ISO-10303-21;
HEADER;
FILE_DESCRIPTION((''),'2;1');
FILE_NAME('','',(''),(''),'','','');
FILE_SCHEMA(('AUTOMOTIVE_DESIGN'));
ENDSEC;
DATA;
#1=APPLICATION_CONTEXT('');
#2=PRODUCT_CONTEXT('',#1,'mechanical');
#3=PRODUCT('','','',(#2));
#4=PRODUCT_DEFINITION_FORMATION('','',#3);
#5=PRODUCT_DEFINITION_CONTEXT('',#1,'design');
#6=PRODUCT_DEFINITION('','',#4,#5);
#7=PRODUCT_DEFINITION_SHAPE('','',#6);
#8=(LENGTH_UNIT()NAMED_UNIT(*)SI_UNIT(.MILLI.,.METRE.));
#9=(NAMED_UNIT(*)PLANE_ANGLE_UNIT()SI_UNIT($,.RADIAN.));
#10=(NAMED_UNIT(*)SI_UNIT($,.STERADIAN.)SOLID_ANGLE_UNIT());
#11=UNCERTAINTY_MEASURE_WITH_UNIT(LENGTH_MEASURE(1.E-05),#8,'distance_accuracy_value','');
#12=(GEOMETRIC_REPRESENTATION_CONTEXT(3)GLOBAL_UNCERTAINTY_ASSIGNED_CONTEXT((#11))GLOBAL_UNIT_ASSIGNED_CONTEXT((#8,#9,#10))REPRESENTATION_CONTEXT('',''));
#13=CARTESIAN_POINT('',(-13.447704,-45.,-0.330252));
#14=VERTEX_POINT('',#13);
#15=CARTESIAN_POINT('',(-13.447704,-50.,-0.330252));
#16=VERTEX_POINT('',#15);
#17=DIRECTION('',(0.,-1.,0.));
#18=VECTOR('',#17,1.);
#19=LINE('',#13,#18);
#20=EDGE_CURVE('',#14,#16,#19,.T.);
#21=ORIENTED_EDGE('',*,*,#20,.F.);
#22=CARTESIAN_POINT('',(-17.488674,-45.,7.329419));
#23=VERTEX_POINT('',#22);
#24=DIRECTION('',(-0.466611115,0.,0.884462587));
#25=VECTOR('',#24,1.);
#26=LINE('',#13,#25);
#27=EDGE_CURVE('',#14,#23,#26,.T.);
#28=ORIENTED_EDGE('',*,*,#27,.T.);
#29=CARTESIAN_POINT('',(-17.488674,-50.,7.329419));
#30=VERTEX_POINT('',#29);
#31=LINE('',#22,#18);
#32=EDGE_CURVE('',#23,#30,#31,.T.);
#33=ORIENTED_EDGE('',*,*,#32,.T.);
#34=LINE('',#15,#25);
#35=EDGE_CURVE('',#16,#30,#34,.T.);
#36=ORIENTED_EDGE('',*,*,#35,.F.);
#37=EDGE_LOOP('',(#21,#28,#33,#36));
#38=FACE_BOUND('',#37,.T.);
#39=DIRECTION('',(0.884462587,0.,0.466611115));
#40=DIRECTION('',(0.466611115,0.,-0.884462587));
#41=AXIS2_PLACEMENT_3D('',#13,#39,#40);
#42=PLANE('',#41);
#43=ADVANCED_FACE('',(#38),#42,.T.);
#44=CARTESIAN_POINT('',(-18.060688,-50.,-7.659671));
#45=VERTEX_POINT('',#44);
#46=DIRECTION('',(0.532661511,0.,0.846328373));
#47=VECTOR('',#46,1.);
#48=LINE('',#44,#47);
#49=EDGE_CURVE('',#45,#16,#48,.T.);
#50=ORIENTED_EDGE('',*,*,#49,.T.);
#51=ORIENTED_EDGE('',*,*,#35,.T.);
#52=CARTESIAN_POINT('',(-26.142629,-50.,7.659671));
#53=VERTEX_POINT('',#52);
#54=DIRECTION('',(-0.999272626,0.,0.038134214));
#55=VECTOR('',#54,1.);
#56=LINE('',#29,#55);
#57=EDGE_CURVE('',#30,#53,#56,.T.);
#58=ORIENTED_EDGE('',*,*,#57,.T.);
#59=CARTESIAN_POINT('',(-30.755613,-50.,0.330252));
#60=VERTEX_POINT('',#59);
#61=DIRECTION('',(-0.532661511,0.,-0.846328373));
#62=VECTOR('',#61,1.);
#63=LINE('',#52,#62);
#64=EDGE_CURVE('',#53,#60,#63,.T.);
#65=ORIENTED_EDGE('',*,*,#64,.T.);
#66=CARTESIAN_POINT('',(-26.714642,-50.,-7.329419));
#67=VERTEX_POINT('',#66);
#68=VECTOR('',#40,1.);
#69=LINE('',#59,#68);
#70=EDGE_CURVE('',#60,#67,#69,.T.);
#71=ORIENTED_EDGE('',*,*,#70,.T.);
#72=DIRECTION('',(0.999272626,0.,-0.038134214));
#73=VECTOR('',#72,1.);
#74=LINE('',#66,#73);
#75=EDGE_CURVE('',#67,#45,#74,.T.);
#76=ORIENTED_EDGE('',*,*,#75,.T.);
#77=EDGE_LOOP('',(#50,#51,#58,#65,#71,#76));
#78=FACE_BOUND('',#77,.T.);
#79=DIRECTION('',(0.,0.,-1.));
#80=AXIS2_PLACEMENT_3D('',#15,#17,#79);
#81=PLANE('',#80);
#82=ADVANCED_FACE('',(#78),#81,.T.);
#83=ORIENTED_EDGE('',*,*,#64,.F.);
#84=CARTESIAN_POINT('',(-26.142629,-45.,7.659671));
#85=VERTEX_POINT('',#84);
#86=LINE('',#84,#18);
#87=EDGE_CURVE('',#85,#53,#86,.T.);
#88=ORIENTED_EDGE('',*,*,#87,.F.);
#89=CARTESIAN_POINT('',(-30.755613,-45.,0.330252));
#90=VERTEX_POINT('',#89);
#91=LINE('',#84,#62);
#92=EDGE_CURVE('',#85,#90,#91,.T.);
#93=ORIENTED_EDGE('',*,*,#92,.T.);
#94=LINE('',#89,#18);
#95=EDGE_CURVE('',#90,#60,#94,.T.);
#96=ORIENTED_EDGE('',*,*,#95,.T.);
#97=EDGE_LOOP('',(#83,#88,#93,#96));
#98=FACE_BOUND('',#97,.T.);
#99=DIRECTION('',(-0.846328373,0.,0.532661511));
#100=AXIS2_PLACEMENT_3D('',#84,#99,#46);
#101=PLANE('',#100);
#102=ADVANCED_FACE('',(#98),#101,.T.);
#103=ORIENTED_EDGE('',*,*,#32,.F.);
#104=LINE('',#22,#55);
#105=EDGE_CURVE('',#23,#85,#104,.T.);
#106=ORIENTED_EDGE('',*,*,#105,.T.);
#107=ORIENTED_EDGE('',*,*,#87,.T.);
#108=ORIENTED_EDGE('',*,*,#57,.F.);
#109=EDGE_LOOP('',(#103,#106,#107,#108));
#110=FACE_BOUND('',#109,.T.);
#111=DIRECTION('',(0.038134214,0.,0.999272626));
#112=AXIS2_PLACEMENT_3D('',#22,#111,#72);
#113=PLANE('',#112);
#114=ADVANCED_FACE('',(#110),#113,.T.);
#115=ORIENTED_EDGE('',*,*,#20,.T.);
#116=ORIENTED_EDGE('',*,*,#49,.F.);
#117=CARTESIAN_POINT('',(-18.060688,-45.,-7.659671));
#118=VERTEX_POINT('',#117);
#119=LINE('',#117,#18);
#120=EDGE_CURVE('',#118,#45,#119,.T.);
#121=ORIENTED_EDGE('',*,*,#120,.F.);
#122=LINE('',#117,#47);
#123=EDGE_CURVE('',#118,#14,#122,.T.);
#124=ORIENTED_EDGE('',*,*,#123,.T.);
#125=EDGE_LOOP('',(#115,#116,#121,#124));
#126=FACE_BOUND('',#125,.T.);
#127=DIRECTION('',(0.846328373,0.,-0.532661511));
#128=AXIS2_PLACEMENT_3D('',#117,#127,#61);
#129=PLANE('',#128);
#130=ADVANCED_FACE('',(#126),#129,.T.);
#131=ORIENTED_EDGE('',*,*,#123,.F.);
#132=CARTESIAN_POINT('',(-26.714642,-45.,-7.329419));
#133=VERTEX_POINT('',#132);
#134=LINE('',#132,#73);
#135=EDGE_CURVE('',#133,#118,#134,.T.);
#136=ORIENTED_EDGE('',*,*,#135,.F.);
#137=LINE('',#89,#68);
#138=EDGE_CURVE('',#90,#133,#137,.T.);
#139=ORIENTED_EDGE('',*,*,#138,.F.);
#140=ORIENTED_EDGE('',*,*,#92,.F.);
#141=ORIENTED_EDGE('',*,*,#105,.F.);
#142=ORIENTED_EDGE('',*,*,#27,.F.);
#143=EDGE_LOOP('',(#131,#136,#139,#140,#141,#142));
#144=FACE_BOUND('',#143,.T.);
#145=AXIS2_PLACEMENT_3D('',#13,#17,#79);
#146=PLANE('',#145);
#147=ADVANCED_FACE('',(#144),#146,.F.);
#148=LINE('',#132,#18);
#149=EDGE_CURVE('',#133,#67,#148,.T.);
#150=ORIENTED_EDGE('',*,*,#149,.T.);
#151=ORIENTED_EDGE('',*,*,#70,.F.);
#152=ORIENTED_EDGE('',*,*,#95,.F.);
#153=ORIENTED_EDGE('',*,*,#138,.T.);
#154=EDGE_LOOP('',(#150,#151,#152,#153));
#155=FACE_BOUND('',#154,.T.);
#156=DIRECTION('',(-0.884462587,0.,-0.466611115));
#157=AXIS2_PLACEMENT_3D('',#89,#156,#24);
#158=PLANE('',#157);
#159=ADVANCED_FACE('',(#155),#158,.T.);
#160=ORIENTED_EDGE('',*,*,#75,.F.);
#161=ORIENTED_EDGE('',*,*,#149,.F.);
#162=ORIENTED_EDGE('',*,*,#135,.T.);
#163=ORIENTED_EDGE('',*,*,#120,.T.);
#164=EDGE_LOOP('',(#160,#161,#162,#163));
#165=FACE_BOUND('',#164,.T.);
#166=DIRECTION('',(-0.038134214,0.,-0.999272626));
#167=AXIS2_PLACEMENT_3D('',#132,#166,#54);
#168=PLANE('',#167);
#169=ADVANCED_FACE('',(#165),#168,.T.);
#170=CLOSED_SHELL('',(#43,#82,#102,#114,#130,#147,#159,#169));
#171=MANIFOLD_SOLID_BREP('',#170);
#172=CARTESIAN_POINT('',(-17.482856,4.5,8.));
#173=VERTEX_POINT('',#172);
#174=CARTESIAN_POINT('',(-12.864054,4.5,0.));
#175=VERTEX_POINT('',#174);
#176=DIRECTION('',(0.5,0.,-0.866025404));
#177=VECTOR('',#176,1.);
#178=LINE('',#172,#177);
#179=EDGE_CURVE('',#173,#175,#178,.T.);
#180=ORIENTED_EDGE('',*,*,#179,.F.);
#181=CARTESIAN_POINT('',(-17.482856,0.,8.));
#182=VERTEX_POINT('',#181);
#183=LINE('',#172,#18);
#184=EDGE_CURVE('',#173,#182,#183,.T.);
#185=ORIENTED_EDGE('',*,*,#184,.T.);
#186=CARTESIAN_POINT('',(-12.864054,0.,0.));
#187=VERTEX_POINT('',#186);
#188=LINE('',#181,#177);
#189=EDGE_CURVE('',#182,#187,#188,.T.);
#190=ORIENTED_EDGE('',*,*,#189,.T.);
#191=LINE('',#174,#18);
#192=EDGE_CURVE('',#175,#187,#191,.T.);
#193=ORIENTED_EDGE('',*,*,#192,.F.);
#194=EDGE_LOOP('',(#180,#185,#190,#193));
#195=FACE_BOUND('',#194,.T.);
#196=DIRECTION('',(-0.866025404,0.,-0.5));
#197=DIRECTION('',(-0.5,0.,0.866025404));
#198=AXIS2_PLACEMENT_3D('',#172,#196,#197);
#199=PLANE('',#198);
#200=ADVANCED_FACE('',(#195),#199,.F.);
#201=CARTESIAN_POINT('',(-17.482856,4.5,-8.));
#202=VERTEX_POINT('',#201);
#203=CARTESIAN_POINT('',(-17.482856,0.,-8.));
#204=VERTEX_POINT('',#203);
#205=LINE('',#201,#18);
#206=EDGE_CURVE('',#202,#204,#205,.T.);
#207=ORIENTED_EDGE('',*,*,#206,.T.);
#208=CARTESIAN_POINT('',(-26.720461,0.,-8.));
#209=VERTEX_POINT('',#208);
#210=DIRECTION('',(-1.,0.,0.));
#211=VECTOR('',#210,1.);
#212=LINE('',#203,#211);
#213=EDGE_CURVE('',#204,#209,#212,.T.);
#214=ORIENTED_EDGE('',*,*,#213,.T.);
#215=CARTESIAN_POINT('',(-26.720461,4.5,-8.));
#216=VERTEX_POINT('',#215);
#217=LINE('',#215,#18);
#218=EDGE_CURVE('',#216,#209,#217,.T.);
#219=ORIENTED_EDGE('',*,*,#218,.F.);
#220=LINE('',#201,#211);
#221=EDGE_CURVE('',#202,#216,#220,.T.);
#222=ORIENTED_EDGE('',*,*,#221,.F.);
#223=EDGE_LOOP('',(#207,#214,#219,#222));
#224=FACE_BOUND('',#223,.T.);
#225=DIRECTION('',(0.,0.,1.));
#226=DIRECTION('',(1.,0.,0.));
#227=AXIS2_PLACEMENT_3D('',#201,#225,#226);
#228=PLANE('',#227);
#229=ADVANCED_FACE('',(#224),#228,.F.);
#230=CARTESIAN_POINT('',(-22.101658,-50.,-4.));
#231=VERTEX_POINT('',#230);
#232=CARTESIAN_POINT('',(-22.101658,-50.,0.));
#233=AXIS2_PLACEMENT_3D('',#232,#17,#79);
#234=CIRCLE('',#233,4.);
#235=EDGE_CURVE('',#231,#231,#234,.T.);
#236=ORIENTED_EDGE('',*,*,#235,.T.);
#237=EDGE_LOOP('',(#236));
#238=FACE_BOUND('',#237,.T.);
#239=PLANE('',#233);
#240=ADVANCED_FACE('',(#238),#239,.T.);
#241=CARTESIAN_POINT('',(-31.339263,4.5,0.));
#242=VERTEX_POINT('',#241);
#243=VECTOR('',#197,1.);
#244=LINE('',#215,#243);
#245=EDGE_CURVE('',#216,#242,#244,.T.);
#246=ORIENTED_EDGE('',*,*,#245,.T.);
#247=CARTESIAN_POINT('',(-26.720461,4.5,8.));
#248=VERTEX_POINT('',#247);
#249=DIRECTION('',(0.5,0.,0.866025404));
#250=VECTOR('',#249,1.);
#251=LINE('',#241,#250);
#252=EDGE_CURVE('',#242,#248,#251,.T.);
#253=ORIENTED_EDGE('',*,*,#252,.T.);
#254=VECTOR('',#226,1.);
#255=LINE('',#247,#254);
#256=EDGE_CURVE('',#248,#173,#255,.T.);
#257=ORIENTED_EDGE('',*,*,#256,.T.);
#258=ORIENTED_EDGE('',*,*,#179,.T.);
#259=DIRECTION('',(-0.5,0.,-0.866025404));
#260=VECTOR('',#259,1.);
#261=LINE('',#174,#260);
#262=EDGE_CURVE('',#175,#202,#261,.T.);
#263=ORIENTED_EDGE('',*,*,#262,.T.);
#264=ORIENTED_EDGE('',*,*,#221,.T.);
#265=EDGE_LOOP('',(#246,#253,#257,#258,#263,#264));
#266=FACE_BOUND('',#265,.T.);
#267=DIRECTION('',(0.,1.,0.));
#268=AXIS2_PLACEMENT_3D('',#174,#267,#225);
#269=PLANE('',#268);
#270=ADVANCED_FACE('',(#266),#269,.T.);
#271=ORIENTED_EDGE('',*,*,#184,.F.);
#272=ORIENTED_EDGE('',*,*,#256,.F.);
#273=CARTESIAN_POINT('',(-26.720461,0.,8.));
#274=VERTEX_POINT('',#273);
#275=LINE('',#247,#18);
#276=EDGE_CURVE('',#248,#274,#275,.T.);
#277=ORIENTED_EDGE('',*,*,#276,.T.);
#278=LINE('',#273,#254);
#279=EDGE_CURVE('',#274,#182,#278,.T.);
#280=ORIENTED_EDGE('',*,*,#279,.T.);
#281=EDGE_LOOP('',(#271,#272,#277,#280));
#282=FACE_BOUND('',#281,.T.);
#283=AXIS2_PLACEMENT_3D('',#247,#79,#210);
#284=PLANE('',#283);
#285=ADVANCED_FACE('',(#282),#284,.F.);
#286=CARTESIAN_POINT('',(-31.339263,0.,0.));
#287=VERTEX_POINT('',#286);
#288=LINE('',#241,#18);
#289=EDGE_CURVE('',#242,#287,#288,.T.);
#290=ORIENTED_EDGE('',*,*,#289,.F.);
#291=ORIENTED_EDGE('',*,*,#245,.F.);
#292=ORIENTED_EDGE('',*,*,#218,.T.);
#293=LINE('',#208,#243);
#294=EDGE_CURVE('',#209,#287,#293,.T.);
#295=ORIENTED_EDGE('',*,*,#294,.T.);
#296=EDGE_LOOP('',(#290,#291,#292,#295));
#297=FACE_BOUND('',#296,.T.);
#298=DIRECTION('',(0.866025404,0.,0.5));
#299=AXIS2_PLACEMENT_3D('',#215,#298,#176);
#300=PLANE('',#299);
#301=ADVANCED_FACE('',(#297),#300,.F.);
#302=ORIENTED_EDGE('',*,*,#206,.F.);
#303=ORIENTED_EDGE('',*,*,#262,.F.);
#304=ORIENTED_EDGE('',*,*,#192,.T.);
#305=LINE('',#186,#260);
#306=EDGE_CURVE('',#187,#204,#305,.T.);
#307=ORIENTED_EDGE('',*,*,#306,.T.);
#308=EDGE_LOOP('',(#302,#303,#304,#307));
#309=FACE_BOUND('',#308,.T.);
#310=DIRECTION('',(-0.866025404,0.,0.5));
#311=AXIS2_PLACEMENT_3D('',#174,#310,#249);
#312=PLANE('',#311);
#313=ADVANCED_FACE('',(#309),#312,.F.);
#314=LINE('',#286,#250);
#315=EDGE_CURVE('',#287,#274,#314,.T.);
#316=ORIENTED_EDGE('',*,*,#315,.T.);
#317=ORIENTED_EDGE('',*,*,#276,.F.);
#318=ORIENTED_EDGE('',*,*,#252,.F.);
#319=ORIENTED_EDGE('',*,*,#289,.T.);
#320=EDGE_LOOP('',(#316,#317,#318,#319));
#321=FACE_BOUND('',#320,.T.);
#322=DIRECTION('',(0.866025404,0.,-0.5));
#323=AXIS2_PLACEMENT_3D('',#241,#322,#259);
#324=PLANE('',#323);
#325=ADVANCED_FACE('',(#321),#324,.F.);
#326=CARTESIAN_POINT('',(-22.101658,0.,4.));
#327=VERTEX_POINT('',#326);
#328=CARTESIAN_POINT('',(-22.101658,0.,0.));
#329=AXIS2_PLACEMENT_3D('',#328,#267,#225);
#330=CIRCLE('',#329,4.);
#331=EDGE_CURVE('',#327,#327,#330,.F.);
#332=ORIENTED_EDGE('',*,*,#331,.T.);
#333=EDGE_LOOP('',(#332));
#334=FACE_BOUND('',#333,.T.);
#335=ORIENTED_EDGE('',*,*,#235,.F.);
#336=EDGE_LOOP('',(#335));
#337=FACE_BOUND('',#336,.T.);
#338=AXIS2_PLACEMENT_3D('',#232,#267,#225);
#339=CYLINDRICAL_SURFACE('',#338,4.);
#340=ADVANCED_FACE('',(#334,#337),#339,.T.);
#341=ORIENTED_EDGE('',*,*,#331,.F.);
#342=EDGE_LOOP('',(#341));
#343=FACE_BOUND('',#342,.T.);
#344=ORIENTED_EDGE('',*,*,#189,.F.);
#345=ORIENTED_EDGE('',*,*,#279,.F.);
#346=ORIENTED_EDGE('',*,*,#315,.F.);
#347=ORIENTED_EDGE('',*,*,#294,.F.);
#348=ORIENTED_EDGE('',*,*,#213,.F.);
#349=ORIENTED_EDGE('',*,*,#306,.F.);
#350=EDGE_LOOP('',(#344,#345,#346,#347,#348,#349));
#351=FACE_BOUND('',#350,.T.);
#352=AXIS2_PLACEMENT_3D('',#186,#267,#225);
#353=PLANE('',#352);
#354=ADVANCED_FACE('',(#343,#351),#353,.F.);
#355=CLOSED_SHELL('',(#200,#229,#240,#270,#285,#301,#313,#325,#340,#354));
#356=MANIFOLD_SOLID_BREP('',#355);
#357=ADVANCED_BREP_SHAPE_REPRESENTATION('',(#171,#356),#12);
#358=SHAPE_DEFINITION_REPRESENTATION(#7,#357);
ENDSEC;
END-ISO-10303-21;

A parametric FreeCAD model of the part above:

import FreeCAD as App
import Part
import Sketcher

V = App.Vector
Q = App.Units.Quantity


def add_polygon(sketch, points):
    """Adds a closed chain of lines whose ends are joined by coincident constraints."""
    first, n = sketch.GeometryCount, len(points)
    for a, b in zip(points, points[1:] + points[:1]):
        sketch.addGeometry(Part.LineSegment(App.Vector(*a, 0), App.Vector(*b, 0)), False)
    for i in range(n):
        sketch.addConstraint(Sketcher.Constraint("Coincident", first + i, 2, first + (i + 1) % n, 1))

doc = App.newDocument("Part")
body = doc.addObject("PartDesign::Body", "Body")

# Sketch on XZ plane
sketch1 = doc.addObject("Sketcher::SketchObject", "Sketch")
body.addObject(sketch1)
sketch1.AttachmentSupport = (doc.XZ_Plane, [""])
sketch1.MapMode = "FlatFace"
add_polygon(sketch1, [(-13, 0), (-17, -8), (-27, -8), (-31, 0), (-27, 8), (-17, 8)])  # lines 0-5
sketch1.addConstraint([
    Sketcher.Constraint("Horizontal", 1),
    Sketcher.Constraint("Horizontal", 4),
    Sketcher.Constraint("Symmetric", 1, 2, 3, 2, -1),
    Sketcher.Constraint("PointOnObject", 2, 2, -1),
    Sketcher.Constraint("PointOnObject", 5, 2, -1),
    Sketcher.Constraint("Parallel", 0, 3),
    Sketcher.Constraint("Parallel", 2, 5),
    Sketcher.Constraint("Angle", 0, Q("-120 deg")),
    Sketcher.Constraint("DistanceY", 0, 2, -1, 1, Q("8 mm")),
    Sketcher.Constraint("DistanceX", 1, 2, 1, 1, Q("9.237604 mm")),
    Sketcher.Constraint("DistanceX", 1, 2, -1, 1, Q("26.720461 mm")),
])
pad1 = doc.addObject("PartDesign::Pad", "Pad")
body.addObject(pad1)
pad1.Profile = sketch1
pad1.Length = 4.5
pad1.Reversed = True

# Sketch on XZ plane
sketch2 = doc.addObject("Sketcher::SketchObject", "Sketch001")
body.addObject(sketch2)
sketch2.AttachmentSupport = (doc.XZ_Plane, [""])
sketch2.MapMode = "FlatFace"
sketch2.addGeometry(Part.Circle(V(-22.1, 0, 0), V(0, 0, 1), 4), False)
sketch2.addConstraint([
    Sketcher.Constraint("PointOnObject", 0, 3, -1),
    Sketcher.Constraint("Diameter", 0, Q("8 mm")),
    Sketcher.Constraint("DistanceX", 0, 3, -1, 1, Q("22.101658 mm")),
])
pad2 = doc.addObject("PartDesign::Pad", "Pad001")
body.addObject(pad2)
pad2.Profile = sketch2
pad2.Length = 50
body2 = doc.addObject("PartDesign::Body", "Body001")

# Sketch on XZ plane
sketch3 = doc.addObject("Sketcher::SketchObject", "Sketch002")
body2.addObject(sketch3)
sketch3.AttachmentSupport = (doc.getObject("XZ_Plane001"), [""])
sketch3.MapMode = "FlatFace"
sketch3.AttachmentOffset = App.Placement(V(0, 0, 50), App.Rotation())
add_polygon(sketch3, [(-13, 0), (-17, 7), (-26, 8), (-31, 0), (-27, -7), (-18, -8)])  # lines 0-5
sketch3.addConstraint([
    Sketcher.Constraint("Parallel", 0, 3),
    Sketcher.Constraint("Parallel", 1, 4),
    Sketcher.Constraint("Parallel", 2, 5),
    Sketcher.Constraint("Equal", 0, 1),
    Sketcher.Constraint("Equal", 1, 2),
    Sketcher.Constraint("Equal", 2, 3),
    Sketcher.Constraint("DistanceY", -1, 1, 0, 2, Q("7.329419 mm")),
    Sketcher.Constraint("DistanceX", 1, 2, -1, 1, Q("26.142629 mm")),
    Sketcher.Constraint("DistanceY", -1, 1, 1, 2, Q("7.659671 mm")),
    Sketcher.Constraint("DistanceY", -1, 1, 2, 2, Q("0.330252 mm")),
    Sketcher.Constraint("DistanceY", 3, 2, -1, 1, Q("7.329419 mm")),
    Sketcher.Constraint("DistanceX", 2, 2, 0, 2, Q("13.266939 mm")),
])
pad3 = doc.addObject("PartDesign::Pad", "Pad002")
body2.addObject(pad3)
pad3.Profile = sketch3
pad3.Length = 5
pad3.Reversed = True

doc.recompute()
